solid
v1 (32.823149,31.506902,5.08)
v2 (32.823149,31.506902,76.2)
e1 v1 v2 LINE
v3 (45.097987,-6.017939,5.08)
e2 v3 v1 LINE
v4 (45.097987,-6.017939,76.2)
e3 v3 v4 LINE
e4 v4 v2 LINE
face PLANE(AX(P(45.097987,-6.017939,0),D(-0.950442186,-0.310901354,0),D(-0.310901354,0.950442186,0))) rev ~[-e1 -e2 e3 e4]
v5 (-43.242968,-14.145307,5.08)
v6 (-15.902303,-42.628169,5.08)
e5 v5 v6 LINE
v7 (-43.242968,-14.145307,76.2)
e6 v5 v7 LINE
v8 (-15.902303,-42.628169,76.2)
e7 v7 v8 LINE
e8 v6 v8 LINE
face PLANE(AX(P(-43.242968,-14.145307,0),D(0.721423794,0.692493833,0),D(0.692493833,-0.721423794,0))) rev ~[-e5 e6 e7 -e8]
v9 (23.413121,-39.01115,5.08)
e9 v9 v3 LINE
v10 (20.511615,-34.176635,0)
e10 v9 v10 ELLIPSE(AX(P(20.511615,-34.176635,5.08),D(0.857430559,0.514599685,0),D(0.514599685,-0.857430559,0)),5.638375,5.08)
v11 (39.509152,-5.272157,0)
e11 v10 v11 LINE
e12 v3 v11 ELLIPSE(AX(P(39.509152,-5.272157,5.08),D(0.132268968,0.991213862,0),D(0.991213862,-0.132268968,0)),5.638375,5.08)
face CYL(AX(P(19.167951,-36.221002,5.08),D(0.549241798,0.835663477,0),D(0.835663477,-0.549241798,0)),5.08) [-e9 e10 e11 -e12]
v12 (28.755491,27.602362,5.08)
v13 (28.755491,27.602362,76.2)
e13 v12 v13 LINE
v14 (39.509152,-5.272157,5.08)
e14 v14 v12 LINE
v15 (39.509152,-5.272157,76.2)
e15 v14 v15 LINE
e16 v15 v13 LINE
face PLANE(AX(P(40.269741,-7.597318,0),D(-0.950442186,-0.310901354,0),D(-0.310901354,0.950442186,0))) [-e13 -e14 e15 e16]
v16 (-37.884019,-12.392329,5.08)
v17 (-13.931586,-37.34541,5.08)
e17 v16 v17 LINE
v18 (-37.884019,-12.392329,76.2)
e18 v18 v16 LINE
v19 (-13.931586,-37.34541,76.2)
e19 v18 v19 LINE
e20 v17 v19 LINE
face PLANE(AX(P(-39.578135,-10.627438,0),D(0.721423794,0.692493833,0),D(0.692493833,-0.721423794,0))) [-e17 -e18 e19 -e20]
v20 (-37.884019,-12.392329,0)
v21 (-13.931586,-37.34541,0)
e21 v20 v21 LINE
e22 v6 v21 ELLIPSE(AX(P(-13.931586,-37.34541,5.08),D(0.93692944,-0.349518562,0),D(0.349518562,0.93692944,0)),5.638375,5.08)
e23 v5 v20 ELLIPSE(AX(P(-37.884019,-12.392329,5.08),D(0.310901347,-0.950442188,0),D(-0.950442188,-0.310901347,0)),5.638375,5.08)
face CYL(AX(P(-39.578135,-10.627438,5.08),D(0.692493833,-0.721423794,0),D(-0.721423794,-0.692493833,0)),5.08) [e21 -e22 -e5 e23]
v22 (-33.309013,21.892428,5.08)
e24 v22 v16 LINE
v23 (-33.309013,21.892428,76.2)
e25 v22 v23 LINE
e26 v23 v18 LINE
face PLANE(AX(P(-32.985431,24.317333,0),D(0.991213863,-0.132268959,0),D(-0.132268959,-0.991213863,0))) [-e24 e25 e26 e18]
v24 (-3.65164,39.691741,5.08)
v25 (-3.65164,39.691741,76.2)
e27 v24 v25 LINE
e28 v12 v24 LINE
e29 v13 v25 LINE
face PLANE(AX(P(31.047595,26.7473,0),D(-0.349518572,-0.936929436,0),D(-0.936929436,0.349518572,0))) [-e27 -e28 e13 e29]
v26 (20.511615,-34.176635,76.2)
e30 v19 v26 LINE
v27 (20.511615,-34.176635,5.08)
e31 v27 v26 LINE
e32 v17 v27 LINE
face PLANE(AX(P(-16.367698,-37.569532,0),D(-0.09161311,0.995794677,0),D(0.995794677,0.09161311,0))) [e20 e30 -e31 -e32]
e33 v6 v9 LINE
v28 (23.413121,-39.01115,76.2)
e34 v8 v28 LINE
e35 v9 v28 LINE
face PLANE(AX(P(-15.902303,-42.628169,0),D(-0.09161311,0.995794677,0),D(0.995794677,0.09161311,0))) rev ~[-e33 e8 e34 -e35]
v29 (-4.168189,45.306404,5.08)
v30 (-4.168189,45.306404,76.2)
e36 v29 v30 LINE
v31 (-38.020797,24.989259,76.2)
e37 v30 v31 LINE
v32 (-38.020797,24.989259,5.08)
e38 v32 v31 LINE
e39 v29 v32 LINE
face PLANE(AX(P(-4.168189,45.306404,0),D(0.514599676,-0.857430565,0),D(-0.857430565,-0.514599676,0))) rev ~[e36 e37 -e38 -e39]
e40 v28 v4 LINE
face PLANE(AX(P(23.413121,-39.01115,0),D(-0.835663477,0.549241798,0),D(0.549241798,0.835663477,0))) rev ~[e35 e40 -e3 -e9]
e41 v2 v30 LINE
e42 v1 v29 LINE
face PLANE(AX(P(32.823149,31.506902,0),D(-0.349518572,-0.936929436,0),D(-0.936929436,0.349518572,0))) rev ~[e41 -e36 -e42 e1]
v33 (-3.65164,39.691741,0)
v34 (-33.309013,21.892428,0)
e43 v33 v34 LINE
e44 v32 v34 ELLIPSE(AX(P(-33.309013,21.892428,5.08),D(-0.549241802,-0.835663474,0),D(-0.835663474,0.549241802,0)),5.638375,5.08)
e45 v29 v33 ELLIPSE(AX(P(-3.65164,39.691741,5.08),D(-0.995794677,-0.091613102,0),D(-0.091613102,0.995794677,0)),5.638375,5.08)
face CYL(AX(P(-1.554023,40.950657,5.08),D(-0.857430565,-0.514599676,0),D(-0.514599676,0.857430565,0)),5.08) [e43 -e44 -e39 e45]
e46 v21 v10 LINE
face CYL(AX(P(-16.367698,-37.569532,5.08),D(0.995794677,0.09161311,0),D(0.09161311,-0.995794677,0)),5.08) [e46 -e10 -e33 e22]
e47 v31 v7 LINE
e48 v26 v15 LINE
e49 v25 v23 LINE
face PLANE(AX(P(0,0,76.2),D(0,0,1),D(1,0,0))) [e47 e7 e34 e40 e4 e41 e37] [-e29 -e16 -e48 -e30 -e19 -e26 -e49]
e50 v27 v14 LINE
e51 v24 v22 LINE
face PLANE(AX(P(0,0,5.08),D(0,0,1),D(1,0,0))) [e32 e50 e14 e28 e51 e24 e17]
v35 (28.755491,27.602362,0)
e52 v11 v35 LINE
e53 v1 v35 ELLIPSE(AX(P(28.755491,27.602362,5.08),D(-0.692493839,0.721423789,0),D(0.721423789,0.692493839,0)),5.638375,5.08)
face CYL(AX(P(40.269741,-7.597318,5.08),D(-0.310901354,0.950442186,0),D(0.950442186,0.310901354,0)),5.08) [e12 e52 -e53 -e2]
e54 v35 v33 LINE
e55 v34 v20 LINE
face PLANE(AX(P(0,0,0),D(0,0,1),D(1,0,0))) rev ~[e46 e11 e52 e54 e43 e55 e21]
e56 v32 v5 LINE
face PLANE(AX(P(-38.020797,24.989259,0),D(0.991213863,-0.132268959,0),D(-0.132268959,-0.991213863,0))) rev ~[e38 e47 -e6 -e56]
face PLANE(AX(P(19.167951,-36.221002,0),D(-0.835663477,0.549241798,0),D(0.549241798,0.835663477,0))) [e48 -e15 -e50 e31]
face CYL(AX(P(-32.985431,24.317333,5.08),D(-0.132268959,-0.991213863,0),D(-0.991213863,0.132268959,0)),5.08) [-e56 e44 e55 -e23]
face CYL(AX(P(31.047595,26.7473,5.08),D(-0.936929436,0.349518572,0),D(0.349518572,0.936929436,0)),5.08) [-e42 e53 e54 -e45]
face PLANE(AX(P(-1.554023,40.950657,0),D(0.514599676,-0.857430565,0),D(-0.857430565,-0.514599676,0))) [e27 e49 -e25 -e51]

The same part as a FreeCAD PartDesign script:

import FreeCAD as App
import Part
import Sketcher
from FreeCAD import Vector
Q = App.Units.Quantity


def edges_at(feature, points):
    """Names of the edges that pass closest to the given points."""
    edges = feature.Shape.Edges
    near = lambda p: min(range(len(edges)), key=lambda i: edges[i].distToShape(Part.Vertex(*p))[0])
    return sorted({f"Edge{near(p) + 1}" for p in points})


def faces_at(feature, points):
    """Names of the faces that lie closest to the given points."""
    faces = feature.Shape.Faces
    near = lambda p: min(range(len(faces)), key=lambda i: faces[i].distToShape(Part.Vertex(*p))[0])
    return sorted({f"Face{near(p) + 1}" for p in points})

doc = App.newDocument("Part")
body = doc.addObject("PartDesign::Body", "Body")

sketch1 = body.newObject("Sketcher::SketchObject", "Sketch")
sketch1.AttachmentSupport = (doc.getObject("XY_Plane"), [""])
sketch1.MapMode = "FlatFace"
sketch1.addGeometry([
    Part.LineSegment(Vector(-43, -14, 0), Vector(-16, -43, 0)),
    Part.LineSegment(Vector(-16, -43, 0), Vector(23, -39, 0)),
    Part.LineSegment(Vector(23, -39, 0), Vector(45, -6, 0)),
    Part.LineSegment(Vector(45, -6, 0), Vector(33, 32, 0)),
    Part.LineSegment(Vector(33, 32, 0), Vector(-4, 45, 0)),
    Part.LineSegment(Vector(-4, 45, 0), Vector(-38, 25, 0)),
    Part.LineSegment(Vector(-38, 25, 0), Vector(-43, -14, 0)),
], False)
sketch1.addConstraint([
    Sketcher.Constraint("Coincident", 0, 2, 1, 1),
    Sketcher.Constraint("Coincident", 1, 2, 2, 1),
    Sketcher.Constraint("Coincident", 2, 2, 3, 1),
    Sketcher.Constraint("Coincident", 3, 2, 4, 1),
    Sketcher.Constraint("Coincident", 4, 2, 5, 1),
    Sketcher.Constraint("Coincident", 5, 2, 6, 1),
    Sketcher.Constraint("Coincident", 6, 2, 0, 1),
    Sketcher.Constraint("Equal", 0, 1),
    Sketcher.Constraint("Equal", 1, 2),
    Sketcher.Constraint("Equal", 2, 3),
    Sketcher.Constraint("Equal", 3, 4),
    Sketcher.Constraint("Equal", 4, 5),
    Sketcher.Constraint("Equal", 5, 6),
    Sketcher.Constraint("DistanceY", 5, 2, 3, 2, Q("0.2566001 in")),
    Sketcher.Constraint("DistanceY", -1, 1, 3, 2, 31.506902),
    Sketcher.Constraint("DistanceY", 2, 2, 5, 2, 31.007198),
    Sketcher.Constraint("DistanceY", 0, 2, -1, 1, 42.628169),
    Sketcher.Constraint("DistanceX", -1, 1, 1, 2, 23.413121),
    Sketcher.Constraint("DistanceY", 1, 2, -1, 1, 39.01115),
    Sketcher.Constraint("DistanceX", -1, 1, 3, 2, 32.823149),
    Sketcher.Constraint("DistanceX", 4, 2, -1, 1, 4.168189),
])
pad1 = body.newObject("PartDesign::Pad", "Pad")
pad1.Profile = sketch1
pad1.Length = Q("3 in")
doc.recompute()

thickness = body.newObject("PartDesign::Thickness", "Thickness")
thickness.Base = (pad1, faces_at(pad1, [(0.928, 1.339, 76.2)]))
thickness.Value = Q("0.2 in")
thickness.Reversed = True
thickness.Join = "Arc"
doc.recompute()

fillet = body.newObject("PartDesign::Fillet", "Fillet")
fillet.Base = (thickness, edges_at(thickness, [
    (3.755, -40.82, 0),
    (34.256, -22.515, 0),
    (38.961, 12.744, 0),
    (14.327, 38.407, 0),
    (-21.094, 35.148, 0),
    (-40.632, 5.422, 0),
    (-29.573, -28.387, 0),
]))
fillet.Radius = Q("0.2 in")

doc.recompute()
